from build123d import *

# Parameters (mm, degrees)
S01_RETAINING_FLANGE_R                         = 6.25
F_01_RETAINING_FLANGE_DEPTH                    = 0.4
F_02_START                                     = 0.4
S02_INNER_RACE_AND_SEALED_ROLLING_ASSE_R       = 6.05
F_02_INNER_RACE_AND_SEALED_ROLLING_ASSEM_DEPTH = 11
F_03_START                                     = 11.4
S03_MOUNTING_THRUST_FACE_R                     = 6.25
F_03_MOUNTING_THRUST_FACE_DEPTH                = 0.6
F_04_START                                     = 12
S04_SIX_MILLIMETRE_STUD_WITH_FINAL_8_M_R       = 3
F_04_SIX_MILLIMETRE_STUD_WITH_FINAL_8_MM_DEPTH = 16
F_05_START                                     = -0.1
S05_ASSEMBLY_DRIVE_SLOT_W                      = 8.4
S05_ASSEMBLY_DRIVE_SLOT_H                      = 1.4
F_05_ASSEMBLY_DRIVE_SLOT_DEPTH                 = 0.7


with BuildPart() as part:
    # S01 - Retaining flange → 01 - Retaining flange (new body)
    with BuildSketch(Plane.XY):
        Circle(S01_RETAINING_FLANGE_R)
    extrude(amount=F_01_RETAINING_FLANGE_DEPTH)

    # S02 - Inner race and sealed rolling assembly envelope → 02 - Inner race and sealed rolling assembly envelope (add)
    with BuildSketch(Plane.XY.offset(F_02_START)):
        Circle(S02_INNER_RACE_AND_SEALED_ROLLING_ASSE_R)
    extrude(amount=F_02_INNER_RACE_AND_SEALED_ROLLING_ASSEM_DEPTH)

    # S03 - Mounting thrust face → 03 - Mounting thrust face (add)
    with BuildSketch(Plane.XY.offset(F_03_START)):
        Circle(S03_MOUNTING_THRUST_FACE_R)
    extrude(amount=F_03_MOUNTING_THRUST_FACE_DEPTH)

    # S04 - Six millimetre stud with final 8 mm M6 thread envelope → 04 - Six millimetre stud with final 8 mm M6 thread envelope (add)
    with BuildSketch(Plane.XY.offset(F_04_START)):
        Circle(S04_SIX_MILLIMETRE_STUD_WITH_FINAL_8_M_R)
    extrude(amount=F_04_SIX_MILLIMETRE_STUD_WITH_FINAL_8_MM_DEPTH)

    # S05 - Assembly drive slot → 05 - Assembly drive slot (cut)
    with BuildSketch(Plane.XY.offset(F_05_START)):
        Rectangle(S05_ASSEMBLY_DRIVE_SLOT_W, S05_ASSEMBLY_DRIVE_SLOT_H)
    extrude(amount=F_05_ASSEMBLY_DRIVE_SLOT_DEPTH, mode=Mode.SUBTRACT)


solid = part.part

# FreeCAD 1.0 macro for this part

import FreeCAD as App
import Part
import Sketcher
Q = App.Units.Quantity

doc = App.newDocument("Part")
params = doc.addObject("Spreadsheet::Sheet", "Params")
for row, (alias, value) in enumerate([
    ("sketch1_diameter", "12.5 mm"),
    ("pad1_length", "0.4 mm"),
    ("sketch2_diameter", "12.1 mm"),
    ("pad2_length", "11 mm"),
    ("sketch3_diameter", "12.5 mm"),
    ("pad3_length", "0.6 mm"),
    ("sketch4_diameter", "6 mm"),
    ("pad4_length", "16 mm"),
    ("sketch5_width", "8.4 mm"),
    ("sketch5_height", "1.4 mm"),
    ("pocket1_length", "0.7 mm"),
], start=1):
    params.set(f"A{row}", alias)
    params.set(f"B{row}", "=" + value)
    params.setAlias(f"B{row}", alias)

body = doc.addObject("PartDesign::Body", "Body")

# Sketch on XY plane
sketch1 = body.newObject("Sketcher::SketchObject", "Sketch")
sketch1.AttachmentSupport = (doc.getObject("XY_Plane"), [""])
sketch1.MapMode = "FlatFace"
sketch1.addGeometry(Part.Circle(App.Vector(0, 0, 0), App.Vector(0, 0, 1), 6), False)
sketch1.addConstraint(Sketcher.Constraint("Coincident", 0, 3, -1, 1))
sketch1.addConstraint(Sketcher.Constraint("Diameter", 0, Q("12.5 mm")))
sketch1.setExpression("Constraints[1]", "Params.sketch1_diameter")
pad1 = body.newObject("PartDesign::Pad", "Pad")
pad1.Profile = sketch1
pad1.setExpression("Length", "Params.pad1_length")

# Sketch on XY plane
sketch2 = body.newObject("Sketcher::SketchObject", "Sketch001")
sketch2.AttachmentSupport = (doc.getObject("XY_Plane"), [""])
sketch2.MapMode = "FlatFace"
sketch2.AttachmentOffset = App.Placement(App.Vector(0, 0, 0.4), App.Rotation())
sketch2.addGeometry(Part.Circle(App.Vector(0, 0, 0), App.Vector(0, 0, 1), 6), False)
sketch2.addConstraint(Sketcher.Constraint("Coincident", 0, 3, -1, 1))
sketch2.addConstraint(Sketcher.Constraint("Diameter", 0, Q("12.1 mm")))
sketch2.setExpression("Constraints[1]", "Params.sketch2_diameter")
pad2 = body.newObject("PartDesign::Pad", "Pad001")
pad2.Profile = sketch2
pad2.setExpression("Length", "Params.pad2_length")

# Sketch on XY plane
sketch3 = body.newObject("Sketcher::SketchObject", "Sketch002")
sketch3.AttachmentSupport = (doc.getObject("XY_Plane"), [""])
sketch3.MapMode = "FlatFace"
sketch3.AttachmentOffset = App.Placement(App.Vector(0, 0, 11.4), App.Rotation())
sketch3.addGeometry(Part.Circle(App.Vector(0, 0, 0), App.Vector(0, 0, 1), 6), False)
sketch3.addConstraint(Sketcher.Constraint("Coincident", 0, 3, -1, 1))
sketch3.addConstraint(Sketcher.Constraint("Diameter", 0, Q("12.5 mm")))
sketch3.setExpression("Constraints[1]", "Params.sketch3_diameter")
pad3 = body.newObject("PartDesign::Pad", "Pad002")
pad3.Profile = sketch3
pad3.setExpression("Length", "Params.pad3_length")

# Sketch on XY plane
sketch4 = body.newObject("Sketcher::SketchObject", "Sketch003")
sketch4.AttachmentSupport = (doc.getObject("XY_Plane"), [""])
sketch4.MapMode = "FlatFace"
sketch4.AttachmentOffset = App.Placement(App.Vector(0, 0, 12), App.Rotation())
sketch4.addGeometry(Part.Circle(App.Vector(0, 0, 0), App.Vector(0, 0, 1), 3), False)
sketch4.addConstraint(Sketcher.Constraint("Coincident", 0, 3, -1, 1))
sketch4.addConstraint(Sketcher.Constraint("Diameter", 0, Q("6 mm")))
sketch4.setExpression("Constraints[1]", "Params.sketch4_diameter")
pad4 = body.newObject("PartDesign::Pad", "Pad003")
pad4.Profile = sketch4
pad4.setExpression("Length", "Params.pad4_length")

# Sketch on XY plane
sketch5 = body.newObject("Sketcher::SketchObject", "Sketch004")
sketch5.AttachmentSupport = (doc.getObject("XY_Plane"), [""])
sketch5.MapMode = "FlatFace"
sketch5.AttachmentOffset = App.Placement(App.Vector(0, 0, -0.1), App.Rotation())
sketch5.addGeometry(Part.LineSegment(App.Vector(-4.2, 0.7, 0), App.Vector(-4.2, -0.7, 0)), False)
sketch5.addGeometry(Part.LineSegment(App.Vector(-4.2, -0.7, 0), App.Vector(4.2, -0.7, 0)), False)
sketch5.addGeometry(Part.LineSegment(App.Vector(4.2, -0.7, 0), App.Vector(4.2, 0.7, 0)), False)
sketch5.addGeometry(Part.LineSegment(App.Vector(4.2, 0.7, 0), App.Vector(-4.2, 0.7, 0)), False)
sketch5.addConstraint(Sketcher.Constraint("Coincident", 0, 2, 1, 1))
sketch5.addConstraint(Sketcher.Constraint("Coincident", 1, 2, 2, 1))
sketch5.addConstraint(Sketcher.Constraint("Coincident", 2, 2, 3, 1))
sketch5.addConstraint(Sketcher.Constraint("Coincident", 3, 2, 0, 1))
sketch5.addConstraint(Sketcher.Constraint("Vertical", 0))
sketch5.addConstraint(Sketcher.Constraint("Horizontal", 1))
sketch5.addConstraint(Sketcher.Constraint("Vertical", 2))
sketch5.addConstraint(Sketcher.Constraint("Horizontal", 3))
sketch5.addConstraint(Sketcher.Constraint("Symmetric", 0, 2, 2, 2, -1, 1))
sketch5.addConstraint(Sketcher.Constraint("DistanceX", 1, 1, 1, 2, Q("8.4 mm")))
sketch5.addConstraint(Sketcher.Constraint("DistanceY", 0, 2, 0, 1, Q("1.4 mm")))
sketch5.setExpression("Constraints[9]", "Params.sketch5_width")
sketch5.setExpression("Constraints[10]", "Params.sketch5_height")
pocket1 = body.newObject("PartDesign::Pocket", "Pocket")
pocket1.Profile = sketch5
pocket1.setExpression("Length", "Params.pocket1_length")
pocket1.Reversed = True

doc.recompute()
